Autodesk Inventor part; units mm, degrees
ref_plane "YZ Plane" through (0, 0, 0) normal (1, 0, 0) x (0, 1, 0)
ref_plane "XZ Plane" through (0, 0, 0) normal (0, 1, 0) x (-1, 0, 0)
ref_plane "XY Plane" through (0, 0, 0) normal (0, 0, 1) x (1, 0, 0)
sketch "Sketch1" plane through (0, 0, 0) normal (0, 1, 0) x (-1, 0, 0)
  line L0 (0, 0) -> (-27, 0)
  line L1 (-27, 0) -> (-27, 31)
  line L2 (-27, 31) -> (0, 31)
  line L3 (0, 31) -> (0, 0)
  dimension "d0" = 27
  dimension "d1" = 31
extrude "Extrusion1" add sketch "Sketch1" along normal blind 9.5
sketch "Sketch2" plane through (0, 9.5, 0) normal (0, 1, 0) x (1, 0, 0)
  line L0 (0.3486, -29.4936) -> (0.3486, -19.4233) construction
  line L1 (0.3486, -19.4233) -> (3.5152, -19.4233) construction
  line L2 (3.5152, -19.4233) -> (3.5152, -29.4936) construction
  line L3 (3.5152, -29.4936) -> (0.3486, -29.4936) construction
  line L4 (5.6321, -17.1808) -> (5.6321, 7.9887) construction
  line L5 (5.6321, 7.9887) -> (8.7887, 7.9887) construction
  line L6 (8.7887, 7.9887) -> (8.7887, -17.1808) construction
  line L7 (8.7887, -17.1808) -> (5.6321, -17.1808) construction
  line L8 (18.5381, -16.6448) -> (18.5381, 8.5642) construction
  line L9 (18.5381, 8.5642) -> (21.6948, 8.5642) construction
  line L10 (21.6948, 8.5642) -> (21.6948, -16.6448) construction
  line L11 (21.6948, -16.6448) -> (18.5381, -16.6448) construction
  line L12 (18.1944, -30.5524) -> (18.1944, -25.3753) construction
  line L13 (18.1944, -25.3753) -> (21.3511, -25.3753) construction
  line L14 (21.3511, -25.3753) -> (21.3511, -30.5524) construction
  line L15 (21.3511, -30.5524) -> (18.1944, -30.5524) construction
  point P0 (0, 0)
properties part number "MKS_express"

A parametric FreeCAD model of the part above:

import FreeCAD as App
import Part
import Sketcher
from FreeCAD import Vector
Q = App.Units.Quantity

doc = App.newDocument("Part")
body = doc.addObject("PartDesign::Body", "Body")

# Sketch on XZ plane
sketch1 = doc.addObject("Sketcher::SketchObject", "Sketch")
body.addObject(sketch1)
sketch1.AttachmentSupport = (doc.XZ_Plane, [""])
sketch1.MapMode = "FlatFace"
sketch1.addGeometry([
    Part.LineSegment(Vector(27, 0, 0), Vector(0, 0, 0)),
    Part.LineSegment(Vector(0, 0, 0), Vector(0, 31, 0)),
    Part.LineSegment(Vector(0, 31, 0), Vector(27, 31, 0)),
    Part.LineSegment(Vector(27, 31, 0), Vector(27, 0, 0)),
], False)
sketch1.addConstraint([
    Sketcher.Constraint("Coincident", 0, 2, 1, 1),
    Sketcher.Constraint("Coincident", 1, 2, 2, 1),
    Sketcher.Constraint("Coincident", 2, 2, 3, 1),
    Sketcher.Constraint("Coincident", 3, 2, 0, 1),
    Sketcher.Constraint("Horizontal", 0),
    Sketcher.Constraint("Vertical", 1),
    Sketcher.Constraint("Horizontal", 2),
    Sketcher.Constraint("Vertical", 3),
    Sketcher.Constraint("Coincident", 0, 2, -1, 1),
    Sketcher.Constraint("DistanceX", 0, 2, 0, 1, Q("27 mm")),
    Sketcher.Constraint("DistanceY", 1, 1, 1, 2, Q("31 mm")),
])
pad1 = doc.addObject("PartDesign::Pad", "Pad")
body.addObject(pad1)
pad1.Profile = sketch1
pad1.Length = 9.5
pad1.Reversed = True

doc.recompute()
